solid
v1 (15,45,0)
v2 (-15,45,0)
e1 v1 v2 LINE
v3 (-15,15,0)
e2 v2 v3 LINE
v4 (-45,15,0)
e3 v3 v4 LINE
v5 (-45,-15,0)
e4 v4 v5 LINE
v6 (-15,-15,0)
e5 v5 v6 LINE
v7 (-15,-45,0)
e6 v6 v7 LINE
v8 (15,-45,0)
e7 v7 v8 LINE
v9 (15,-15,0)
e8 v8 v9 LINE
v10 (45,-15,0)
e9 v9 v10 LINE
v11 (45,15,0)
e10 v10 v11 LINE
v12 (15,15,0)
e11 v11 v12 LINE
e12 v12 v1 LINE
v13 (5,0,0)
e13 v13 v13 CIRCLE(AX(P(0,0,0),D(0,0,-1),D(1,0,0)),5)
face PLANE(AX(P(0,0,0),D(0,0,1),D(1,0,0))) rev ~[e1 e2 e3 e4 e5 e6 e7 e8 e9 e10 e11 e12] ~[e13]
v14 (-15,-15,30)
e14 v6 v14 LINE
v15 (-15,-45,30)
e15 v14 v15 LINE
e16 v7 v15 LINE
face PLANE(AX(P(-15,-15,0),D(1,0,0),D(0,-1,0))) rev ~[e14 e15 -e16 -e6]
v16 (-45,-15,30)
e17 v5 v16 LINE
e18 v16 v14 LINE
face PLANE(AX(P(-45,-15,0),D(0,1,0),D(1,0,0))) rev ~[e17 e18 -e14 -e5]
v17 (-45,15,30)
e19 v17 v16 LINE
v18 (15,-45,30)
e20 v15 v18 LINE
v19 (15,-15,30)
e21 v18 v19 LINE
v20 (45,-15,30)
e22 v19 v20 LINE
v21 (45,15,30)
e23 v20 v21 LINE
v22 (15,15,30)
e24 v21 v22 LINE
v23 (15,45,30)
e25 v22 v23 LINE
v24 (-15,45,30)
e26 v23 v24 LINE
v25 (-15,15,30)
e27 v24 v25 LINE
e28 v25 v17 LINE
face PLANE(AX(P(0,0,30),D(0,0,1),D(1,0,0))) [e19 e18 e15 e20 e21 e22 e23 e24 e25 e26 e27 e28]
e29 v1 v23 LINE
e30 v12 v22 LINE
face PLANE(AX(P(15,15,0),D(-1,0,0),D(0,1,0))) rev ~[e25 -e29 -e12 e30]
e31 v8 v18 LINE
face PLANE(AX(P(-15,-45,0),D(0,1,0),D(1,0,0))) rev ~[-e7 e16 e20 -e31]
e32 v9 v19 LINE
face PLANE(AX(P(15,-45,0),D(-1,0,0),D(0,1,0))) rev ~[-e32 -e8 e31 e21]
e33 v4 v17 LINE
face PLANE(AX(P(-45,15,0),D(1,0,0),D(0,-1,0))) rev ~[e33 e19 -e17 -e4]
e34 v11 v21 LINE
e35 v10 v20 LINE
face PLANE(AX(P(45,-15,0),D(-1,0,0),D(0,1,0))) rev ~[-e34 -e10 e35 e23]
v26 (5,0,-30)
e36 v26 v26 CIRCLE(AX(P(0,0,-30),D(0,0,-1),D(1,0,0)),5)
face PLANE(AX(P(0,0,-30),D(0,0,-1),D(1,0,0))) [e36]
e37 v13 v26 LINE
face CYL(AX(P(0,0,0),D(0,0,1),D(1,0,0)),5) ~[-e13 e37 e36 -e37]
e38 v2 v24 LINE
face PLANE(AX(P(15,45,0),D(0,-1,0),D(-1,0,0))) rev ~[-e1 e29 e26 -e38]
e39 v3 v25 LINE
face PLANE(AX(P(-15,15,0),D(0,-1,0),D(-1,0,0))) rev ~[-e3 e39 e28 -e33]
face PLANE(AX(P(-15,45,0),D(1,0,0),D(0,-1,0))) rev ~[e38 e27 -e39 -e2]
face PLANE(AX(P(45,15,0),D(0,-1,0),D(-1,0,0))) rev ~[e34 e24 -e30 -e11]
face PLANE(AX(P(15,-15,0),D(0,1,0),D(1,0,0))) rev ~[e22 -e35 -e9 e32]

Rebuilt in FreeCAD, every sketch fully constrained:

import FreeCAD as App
import Part
import Sketcher
from FreeCAD import Vector

doc = App.newDocument("Part")
params = doc.addObject("Spreadsheet::Sheet", "Params")
for row, (alias, value) in enumerate([
    ("sketch1_width", "30 mm"),
    ("pad1_length", "30 mm"),
    ("sketch2_diameter", "10 mm"),
    ("pad2_length", "30 mm"),
], start=1):
    params.set(f"A{row}", alias)
    params.set(f"B{row}", "=" + value)
    params.setAlias(f"B{row}", alias)

body = doc.addObject("PartDesign::Body", "Body")

sketch1 = doc.addObject("Sketcher::SketchObject", "Sketch")
body.addObject(sketch1)
sketch1.AttachmentSupport = (doc.XY_Plane, [""])
sketch1.MapMode = "FlatFace"
sketch1.addGeometry([
    Part.LineSegment(Vector(45, -15, 0), Vector(45, 15, 0)),
    Part.LineSegment(Vector(45, 15, 0), Vector(15, 15, 0)),
    Part.LineSegment(Vector(15, 15, 0), Vector(15, 45, 0)),
    Part.LineSegment(Vector(15, 45, 0), Vector(-15, 45, 0)),
    Part.LineSegment(Vector(-15, 45, 0), Vector(-15, 15, 0)),
    Part.LineSegment(Vector(-15, 15, 0), Vector(-45, 15, 0)),
    Part.LineSegment(Vector(-45, 15, 0), Vector(-45, -15, 0)),
    Part.LineSegment(Vector(-45, -15, 0), Vector(-15, -15, 0)),
    Part.LineSegment(Vector(-15, -15, 0), Vector(-15, -45, 0)),
    Part.LineSegment(Vector(-15, -45, 0), Vector(15, -45, 0)),
    Part.LineSegment(Vector(15, -45, 0), Vector(15, -15, 0)),
    Part.LineSegment(Vector(15, -15, 0), Vector(45, -15, 0)),
], False)
sketch1.addConstraint([
    Sketcher.Constraint("Coincident", 0, 2, 1, 1),
    Sketcher.Constraint("Coincident", 1, 2, 2, 1),
    Sketcher.Constraint("Coincident", 2, 2, 3, 1),
    Sketcher.Constraint("Coincident", 3, 2, 4, 1),
    Sketcher.Constraint("Coincident", 4, 2, 5, 1),
    Sketcher.Constraint("Coincident", 5, 2, 6, 1),
    Sketcher.Constraint("Coincident", 6, 2, 7, 1),
    Sketcher.Constraint("Coincident", 7, 2, 8, 1),
    Sketcher.Constraint("Coincident", 8, 2, 9, 1),
    Sketcher.Constraint("Coincident", 9, 2, 10, 1),
    Sketcher.Constraint("Coincident", 10, 2, 11, 1),
    Sketcher.Constraint("Coincident", 11, 2, 0, 1),
    Sketcher.Constraint("Vertical", 0),
    Sketcher.Constraint("Horizontal", 1),
    Sketcher.Constraint("Vertical", 2),
    Sketcher.Constraint("Horizontal", 3),
    Sketcher.Constraint("Vertical", 4),
    Sketcher.Constraint("Horizontal", 5),
    Sketcher.Constraint("Vertical", 6),
    Sketcher.Constraint("Horizontal", 7),
    Sketcher.Constraint("Vertical", 8),
    Sketcher.Constraint("Horizontal", 9),
    Sketcher.Constraint("Vertical", 10),
    Sketcher.Constraint("Horizontal", 11),
    Sketcher.Constraint("Symmetric", 0, 2, 6, 2, -1, 1),
    Sketcher.Constraint("Symmetric", 2, 2, 8, 2, -1, 1),
    Sketcher.Constraint("Symmetric", 4, 2, 10, 2, -1, 1),
    Sketcher.Constraint("Symmetric", 1, 2, 4, 2, -2),
    Sketcher.Constraint("Equal", 1, 3),
    Sketcher.Constraint("Equal", 11, 0),
    Sketcher.Constraint("Equal", 0, 2),
    Sketcher.Constraint("DistanceX", 1, 2, 1, 1, 30.0),
])
sketch1.setExpression("Constraints[31]", "Params.sketch1_width")
pad1 = doc.addObject("PartDesign::Pad", "Pad")
body.addObject(pad1)
pad1.Profile = sketch1
pad1.setExpression("Length", "Params.pad1_length")

sketch2 = doc.addObject("Sketcher::SketchObject", "Sketch001")
body.addObject(sketch2)
sketch2.AttachmentSupport = (doc.XY_Plane, [""])
sketch2.MapMode = "FlatFace"
sketch2.addGeometry(Part.Circle(Vector(0, 0, 0), Vector(0, 0, 1), 5), False)
sketch2.addConstraint([
    Sketcher.Constraint("Coincident", 0, 3, -1, 1),
    Sketcher.Constraint("Diameter", 0, 10.0),
])
sketch2.setExpression("Constraints[1]", "Params.sketch2_diameter")
pad2 = doc.addObject("PartDesign::Pad", "Pad001")
body.addObject(pad2)
pad2.Profile = sketch2
pad2.setExpression("Length", "Params.pad2_length")
pad2.Reversed = True

doc.recompute()
